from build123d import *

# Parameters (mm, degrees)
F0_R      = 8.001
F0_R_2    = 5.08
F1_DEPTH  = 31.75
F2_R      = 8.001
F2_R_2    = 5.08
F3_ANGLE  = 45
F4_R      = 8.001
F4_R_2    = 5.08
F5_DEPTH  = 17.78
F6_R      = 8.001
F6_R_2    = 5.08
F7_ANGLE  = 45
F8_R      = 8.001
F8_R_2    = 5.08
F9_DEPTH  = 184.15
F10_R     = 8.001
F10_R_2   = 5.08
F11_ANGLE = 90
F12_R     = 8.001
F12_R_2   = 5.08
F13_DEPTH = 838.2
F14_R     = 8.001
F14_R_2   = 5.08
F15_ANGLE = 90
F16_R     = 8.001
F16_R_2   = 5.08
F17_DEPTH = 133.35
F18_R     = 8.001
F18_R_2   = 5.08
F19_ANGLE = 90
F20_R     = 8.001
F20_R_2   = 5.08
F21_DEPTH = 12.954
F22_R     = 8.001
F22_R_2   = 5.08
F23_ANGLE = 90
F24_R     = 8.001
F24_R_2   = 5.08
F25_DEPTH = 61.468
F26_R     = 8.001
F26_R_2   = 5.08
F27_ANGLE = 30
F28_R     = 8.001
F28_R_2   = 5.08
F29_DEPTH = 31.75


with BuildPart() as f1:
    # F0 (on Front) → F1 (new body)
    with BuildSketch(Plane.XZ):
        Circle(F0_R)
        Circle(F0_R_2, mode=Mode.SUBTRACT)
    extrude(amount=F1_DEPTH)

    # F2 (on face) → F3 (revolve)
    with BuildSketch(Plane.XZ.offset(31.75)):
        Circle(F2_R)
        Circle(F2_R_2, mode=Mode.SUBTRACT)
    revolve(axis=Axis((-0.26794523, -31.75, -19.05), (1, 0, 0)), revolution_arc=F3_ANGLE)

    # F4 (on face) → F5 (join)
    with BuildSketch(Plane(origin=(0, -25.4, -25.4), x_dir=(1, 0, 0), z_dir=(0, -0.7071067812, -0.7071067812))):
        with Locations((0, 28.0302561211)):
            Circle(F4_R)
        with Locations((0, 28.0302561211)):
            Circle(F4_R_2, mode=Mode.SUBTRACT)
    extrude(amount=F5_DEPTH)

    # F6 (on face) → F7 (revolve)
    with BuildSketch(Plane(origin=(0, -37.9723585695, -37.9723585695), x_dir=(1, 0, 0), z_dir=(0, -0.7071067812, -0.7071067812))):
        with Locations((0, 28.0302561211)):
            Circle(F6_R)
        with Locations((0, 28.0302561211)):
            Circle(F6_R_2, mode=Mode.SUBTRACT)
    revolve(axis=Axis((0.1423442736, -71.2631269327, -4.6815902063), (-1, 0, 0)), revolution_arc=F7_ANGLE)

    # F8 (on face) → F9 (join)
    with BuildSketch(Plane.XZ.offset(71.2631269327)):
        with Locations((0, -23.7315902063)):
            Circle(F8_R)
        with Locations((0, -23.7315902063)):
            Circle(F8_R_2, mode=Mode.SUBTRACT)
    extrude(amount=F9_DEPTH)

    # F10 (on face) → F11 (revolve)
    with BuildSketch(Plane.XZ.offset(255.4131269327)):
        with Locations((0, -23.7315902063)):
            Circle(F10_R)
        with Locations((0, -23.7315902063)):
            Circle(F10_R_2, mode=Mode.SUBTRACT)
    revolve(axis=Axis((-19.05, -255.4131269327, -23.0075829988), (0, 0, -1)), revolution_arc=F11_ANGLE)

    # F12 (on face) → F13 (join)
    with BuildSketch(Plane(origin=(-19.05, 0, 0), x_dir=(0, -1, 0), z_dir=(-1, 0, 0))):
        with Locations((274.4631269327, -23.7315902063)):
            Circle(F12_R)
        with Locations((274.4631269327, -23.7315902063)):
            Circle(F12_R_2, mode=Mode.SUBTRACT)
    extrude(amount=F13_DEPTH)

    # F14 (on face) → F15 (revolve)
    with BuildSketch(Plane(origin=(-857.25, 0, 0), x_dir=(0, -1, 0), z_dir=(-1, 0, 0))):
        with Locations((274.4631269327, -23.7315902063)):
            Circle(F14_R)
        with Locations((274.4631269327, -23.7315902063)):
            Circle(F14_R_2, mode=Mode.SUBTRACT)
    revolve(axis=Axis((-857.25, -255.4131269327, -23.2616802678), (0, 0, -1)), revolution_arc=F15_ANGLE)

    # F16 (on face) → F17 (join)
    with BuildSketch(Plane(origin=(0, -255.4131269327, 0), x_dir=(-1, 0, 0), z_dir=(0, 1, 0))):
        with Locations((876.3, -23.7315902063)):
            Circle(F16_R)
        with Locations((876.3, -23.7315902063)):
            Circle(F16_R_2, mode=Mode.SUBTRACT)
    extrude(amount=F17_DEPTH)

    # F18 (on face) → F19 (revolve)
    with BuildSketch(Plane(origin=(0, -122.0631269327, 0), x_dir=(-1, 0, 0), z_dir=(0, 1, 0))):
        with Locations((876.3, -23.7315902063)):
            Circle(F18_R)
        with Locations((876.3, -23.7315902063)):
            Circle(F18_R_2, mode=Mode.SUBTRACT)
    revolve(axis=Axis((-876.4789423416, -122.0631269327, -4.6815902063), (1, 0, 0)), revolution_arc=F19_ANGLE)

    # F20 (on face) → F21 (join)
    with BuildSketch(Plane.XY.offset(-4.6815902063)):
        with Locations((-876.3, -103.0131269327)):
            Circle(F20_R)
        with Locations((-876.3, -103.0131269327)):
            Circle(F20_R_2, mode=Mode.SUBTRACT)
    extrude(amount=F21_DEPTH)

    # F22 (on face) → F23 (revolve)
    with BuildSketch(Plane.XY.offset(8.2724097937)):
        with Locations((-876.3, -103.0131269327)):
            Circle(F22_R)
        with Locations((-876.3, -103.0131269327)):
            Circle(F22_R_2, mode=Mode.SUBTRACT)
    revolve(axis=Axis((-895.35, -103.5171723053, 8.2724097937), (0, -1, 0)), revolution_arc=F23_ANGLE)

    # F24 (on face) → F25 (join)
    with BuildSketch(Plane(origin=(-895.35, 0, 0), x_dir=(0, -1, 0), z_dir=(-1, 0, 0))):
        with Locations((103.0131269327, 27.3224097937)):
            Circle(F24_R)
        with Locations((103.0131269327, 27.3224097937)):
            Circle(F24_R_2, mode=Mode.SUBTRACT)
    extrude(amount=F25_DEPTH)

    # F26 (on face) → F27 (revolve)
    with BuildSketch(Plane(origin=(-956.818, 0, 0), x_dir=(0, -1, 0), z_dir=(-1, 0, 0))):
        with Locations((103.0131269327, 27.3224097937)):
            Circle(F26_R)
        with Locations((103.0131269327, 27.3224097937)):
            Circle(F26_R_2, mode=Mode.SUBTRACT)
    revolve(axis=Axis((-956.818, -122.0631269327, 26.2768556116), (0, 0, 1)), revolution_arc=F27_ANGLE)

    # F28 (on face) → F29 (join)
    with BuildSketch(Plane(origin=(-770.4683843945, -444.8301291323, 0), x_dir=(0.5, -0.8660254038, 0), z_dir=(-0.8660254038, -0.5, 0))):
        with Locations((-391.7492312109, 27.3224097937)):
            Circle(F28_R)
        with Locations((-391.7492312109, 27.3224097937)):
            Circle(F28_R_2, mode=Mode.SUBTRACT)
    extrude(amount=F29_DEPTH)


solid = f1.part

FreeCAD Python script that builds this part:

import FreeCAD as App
import Part
import Sketcher
from FreeCAD import Vector
Q = App.Units.Quantity

doc = App.newDocument("Part")
body = doc.addObject("PartDesign::Body", "Body")

# Sketch on XZ plane
sketch1 = doc.addObject("Sketcher::SketchObject", "Sketch")
body.addObject(sketch1)
sketch1.AttachmentSupport = (doc.XZ_Plane, [""])
sketch1.MapMode = "FlatFace"
sketch1.addGeometry([
    Part.Circle(Vector(0, 0, 0), Vector(0, 0, 1), 8.001),
    Part.Circle(Vector(0, 0, 0), Vector(0, 0, 1), 5.08),
], False)
sketch1.addConstraint([
    Sketcher.Constraint("Coincident", 0, 3, -1, 1),
    Sketcher.Constraint("Coincident", 1, 3, -1, 1),
    Sketcher.Constraint("Diameter", 1, Q("0.4 in")),
    Sketcher.Constraint("Diameter", 0, Q("0.63 in")),
])
pad1 = doc.addObject("PartDesign::Pad", "Pad")
body.addObject(pad1)
pad1.Profile = sketch1
pad1.Length = Q("1.25 in")

# Sketch on XZ plane
sketch2 = doc.addObject("Sketcher::SketchObject", "Sketch001")
body.addObject(sketch2)
sketch2.AttachmentSupport = (doc.XZ_Plane, [""])
sketch2.MapMode = "FlatFace"
sketch2.AttachmentOffset = App.Placement(Vector(0, 0, 1.25 * 25.4), App.Rotation())
sketch2.addGeometry([
    Part.Circle(Vector(0, 0, 0), Vector(0, 0, 1), 8.001),
    Part.Circle(Vector(0, 0, 0), Vector(0, 0, 1), 5.08),
], False)
sketch2.addGeometry(Part.LineSegment(Vector(0, -19.05, 0), Vector(10, -19.05, 0)), True)  # axis
sketch2.addConstraint([
    Sketcher.Constraint("Horizontal", 2),
    Sketcher.Constraint("Coincident", 0, 3, -1, 1),
    Sketcher.Constraint("Coincident", 1, 3, -1, 1),
    Sketcher.Constraint("PointOnObject", 2, 1, -2),
    Sketcher.Constraint("Diameter", 1, Q("0.4 in")),
    Sketcher.Constraint("Diameter", 0, Q("0.63 in")),
    Sketcher.Constraint("DistanceY", 2, 1, -1, 1, Q("0.75 in")),
    Sketcher.Constraint("DistanceX", 2, 1, 2, 2, Q("10 mm")),
])
revolution = doc.addObject("PartDesign::Revolution", "Revolution")
body.addObject(revolution)
revolution.Profile = sketch2
revolution.ReferenceAxis = (sketch2, ["Axis0"])
revolution.Angle = 45

# Sketch on an angled plane
sketch3 = doc.addObject("Sketcher::SketchObject", "Sketch002")
body.addObject(sketch3)
sketch3.Placement = App.Placement(Vector(0, -25.4, -25.4), App.Rotation(Vector(1, 0, 0), Vector(0, -0.707106781, 0.707106781), Vector(0, -0.707106781, -0.707106781), "ZXY"))
sketch3.addGeometry([
    Part.Circle(Vector(0, 28.030256, 0), Vector(0, 0, 1), 8.001),
    Part.Circle(Vector(0, 28.030256, 0), Vector(0, 0, 1), 5.08),
], False)
sketch3.addConstraint([
    Sketcher.Constraint("Coincident", 1, 3, 0, 3),
    Sketcher.Constraint("PointOnObject", 0, 3, -2),
    Sketcher.Constraint("Diameter", 1, Q("0.4 in")),
    Sketcher.Constraint("Diameter", 0, Q("0.63 in")),
    Sketcher.Constraint("DistanceY", -1, 1, 0, 3, Q("28.030256 mm")),
])
pad2 = doc.addObject("PartDesign::Pad", "Pad001")
body.addObject(pad2)
pad2.Profile = sketch3
pad2.Length = Q("0.7 in")

# Sketch on an angled plane
sketch4 = doc.addObject("Sketcher::SketchObject", "Sketch003")
body.addObject(sketch4)
sketch4.Placement = App.Placement(Vector(0, -37.972359, -37.972359), App.Rotation(Vector(1, 0, 0), Vector(0, -0.707106781, 0.707106781), Vector(0, -0.707106781, -0.707106781), "ZXY"))
sketch4.addGeometry([
    Part.Circle(Vector(0, 28.030256, 0), Vector(0, 0, 1), 8.001),
    Part.Circle(Vector(0, 28.030256, 0), Vector(0, 0, 1), 5.08),
], False)
sketch4.addGeometry(Part.LineSegment(Vector(0, 47.080256, 0), Vector(-10, 47.080256, 0)), True)  # axis
sketch4.addConstraint([
    Sketcher.Constraint("Horizontal", 2),
    Sketcher.Constraint("Coincident", 1, 3, 0, 3),
    Sketcher.Constraint("PointOnObject", 0, 3, -2),
    Sketcher.Constraint("PointOnObject", 2, 1, -2),
    Sketcher.Constraint("Diameter", 1, Q("0.4 in")),
    Sketcher.Constraint("Diameter", 0, Q("0.63 in")),
    Sketcher.Constraint("DistanceY", 0, 3, 2, 1, Q("0.75 in")),
    Sketcher.Constraint("DistanceX", 2, 2, 2, 1, Q("10 mm")),
    Sketcher.Constraint("DistanceY", -1, 1, 0, 3, Q("28.030256 mm")),
])
revolution2 = doc.addObject("PartDesign::Revolution", "Revolution001")
body.addObject(revolution2)
revolution2.Profile = sketch4
revolution2.ReferenceAxis = (sketch4, ["Axis0"])
revolution2.Angle = 45

# Sketch on XZ plane
sketch5 = doc.addObject("Sketcher::SketchObject", "Sketch004")
body.addObject(sketch5)
sketch5.AttachmentSupport = (doc.XZ_Plane, [""])
sketch5.MapMode = "FlatFace"
sketch5.AttachmentOffset = App.Placement(Vector(0, 0, 71.263127), App.Rotation())
sketch5.addGeometry([
    Part.Circle(Vector(0, -23.73159, 0), Vector(0, 0, 1), 8.001),
    Part.Circle(Vector(0, -23.73159, 0), Vector(0, 0, 1), 5.08),
], False)
sketch5.addConstraint([
    Sketcher.Constraint("Coincident", 1, 3, 0, 3),
    Sketcher.Constraint("PointOnObject", 0, 3, -2),
    Sketcher.Constraint("Diameter", 1, Q("0.4 in")),
    Sketcher.Constraint("Diameter", 0, Q("0.63 in")),
    Sketcher.Constraint("DistanceY", 0, 3, -1, 1, Q("23.73159 mm")),
])
pad3 = doc.addObject("PartDesign::Pad", "Pad002")
body.addObject(pad3)
pad3.Profile = sketch5
pad3.Length = Q("7.25 in")

# Sketch on XZ plane
sketch6 = doc.addObject("Sketcher::SketchObject", "Sketch005")
body.addObject(sketch6)
sketch6.AttachmentSupport = (doc.XZ_Plane, [""])
sketch6.MapMode = "FlatFace"
sketch6.AttachmentOffset = App.Placement(Vector(0, 0, 255.413127), App.Rotation())
sketch6.addGeometry([
    Part.Circle(Vector(0, -23.73159, 0), Vector(0, 0, 1), 8.001),
    Part.Circle(Vector(0, -23.73159, 0), Vector(0, 0, 1), 5.08),
], False)
sketch6.addGeometry(Part.LineSegment(Vector(-19.05, -23.73159, 0), Vector(-19.05, -33.73159, 0)), True)  # axis
sketch6.addConstraint([
    Sketcher.Constraint("Vertical", 2),
    Sketcher.Constraint("Coincident", 1, 3, 0, 3),
    Sketcher.Constraint("PointOnObject", 0, 3, -2),
    Sketcher.Constraint("Horizontal", 1, 3, 2, 1),
    Sketcher.Constraint("Diameter", 1, Q("0.4 in")),
    Sketcher.Constraint("Diameter", 0, Q("0.63 in")),
    Sketcher.Constraint("DistanceX", 2, 1, -1, 1, Q("0.75 in")),
    Sketcher.Constraint("DistanceY", 2, 2, 2, 1, Q("10 mm")),
    Sketcher.Constraint("DistanceY", 0, 3, -1, 1, Q("23.73159 mm")),
])
revolution3 = doc.addObject("PartDesign::Revolution", "Revolution002")
body.addObject(revolution3)
revolution3.Profile = sketch6
revolution3.ReferenceAxis = (sketch6, ["Axis0"])
revolution3.Angle = 90

# Sketch on YZ plane
sketch7 = doc.addObject("Sketcher::SketchObject", "Sketch006")
body.addObject(sketch7)
sketch7.AttachmentSupport = (doc.YZ_Plane, [""])
sketch7.MapMode = "FlatFace"
sketch7.AttachmentOffset = App.Placement(Vector(0, 0, -0.75 * 25.4), App.Rotation())
sketch7.addGeometry([
    Part.Circle(Vector(-274.463127, -23.73159, 0), Vector(0, 0, 1), 8.001),
    Part.Circle(Vector(-274.463127, -23.73159, 0), Vector(0, 0, 1), 5.08),
], False)
sketch7.addConstraint([
    Sketcher.Constraint("Coincident", 1, 3, 0, 3),
    Sketcher.Constraint("Diameter", 1, Q("0.4 in")),
    Sketcher.Constraint("Diameter", 0, Q("0.63 in")),
    Sketcher.Constraint("DistanceY", 0, 3, -1, 1, Q("23.73159 mm")),
    Sketcher.Constraint("DistanceX", 0, 3, -1, 1, Q("274.463127 mm")),
])
pad4 = doc.addObject("PartDesign::Pad", "Pad003")
body.addObject(pad4)
pad4.Profile = sketch7
pad4.Length = Q("33 in")
pad4.Reversed = True

# Sketch on YZ plane
sketch8 = doc.addObject("Sketcher::SketchObject", "Sketch007")
body.addObject(sketch8)
sketch8.AttachmentSupport = (doc.YZ_Plane, [""])
sketch8.MapMode = "FlatFace"
sketch8.AttachmentOffset = App.Placement(Vector(0, 0, -33.75 * 25.4), App.Rotation())
sketch8.addGeometry([
    Part.Circle(Vector(-274.463127, -23.73159, 0), Vector(0, 0, 1), 8.001),
    Part.Circle(Vector(-274.463127, -23.73159, 0), Vector(0, 0, 1), 5.08),
], False)
sketch8.addGeometry(Part.LineSegment(Vector(-255.413127, -23.73159, 0), Vector(-255.413127, -33.73159, 0)), True)  # axis
sketch8.addConstraint([
    Sketcher.Constraint("Vertical", 2),
    Sketcher.Constraint("Coincident", 1, 3, 0, 3),
    Sketcher.Constraint("Horizontal", 1, 3, 2, 1),
    Sketcher.Constraint("Diameter", 1, Q("0.4 in")),
    Sketcher.Constraint("Diameter", 0, Q("0.63 in")),
    Sketcher.Constraint("DistanceX", 0, 3, 2, 1, Q("0.75 in")),
    Sketcher.Constraint("DistanceY", 2, 2, 2, 1, Q("10 mm")),
    Sketcher.Constraint("DistanceY", 0, 3, -1, 1, Q("23.73159 mm")),
    Sketcher.Constraint("DistanceX", 0, 3, -1, 1, Q("274.463127 mm")),
])
revolution4 = doc.addObject("PartDesign::Revolution", "Revolution003")
body.addObject(revolution4)
revolution4.Profile = sketch8
revolution4.ReferenceAxis = (sketch8, ["Axis0"])
revolution4.Angle = 90

# Sketch on XZ plane
sketch9 = doc.addObject("Sketcher::SketchObject", "Sketch008")
body.addObject(sketch9)
sketch9.AttachmentSupport = (doc.XZ_Plane, [""])
sketch9.MapMode = "FlatFace"
sketch9.AttachmentOffset = App.Placement(Vector(0, 0, 255.413127), App.Rotation())
sketch9.addGeometry([
    Part.Circle(Vector(-876.3, -23.73159, 0), Vector(0, 0, 1), 8.001),
    Part.Circle(Vector(-876.3, -23.73159, 0), Vector(0, 0, 1), 5.08),
], False)
sketch9.addConstraint([
    Sketcher.Constraint("Coincident", 1, 3, 0, 3),
    Sketcher.Constraint("Diameter", 1, Q("0.4 in")),
    Sketcher.Constraint("Diameter", 0, Q("0.63 in")),
    Sketcher.Constraint("DistanceX", 0, 3, -1, 1, Q("34.5 in")),
    Sketcher.Constraint("DistanceY", 0, 3, -1, 1, Q("23.73159 mm")),
])
pad5 = doc.addObject("PartDesign::Pad", "Pad004")
body.addObject(pad5)
pad5.Profile = sketch9
pad5.Length = Q("5.25 in")
pad5.Reversed = True

# Sketch on XZ plane
sketch10 = doc.addObject("Sketcher::SketchObject", "Sketch009")
body.addObject(sketch10)
sketch10.AttachmentSupport = (doc.XZ_Plane, [""])
sketch10.MapMode = "FlatFace"
sketch10.AttachmentOffset = App.Placement(Vector(0, 0, 122.063127), App.Rotation())
sketch10.addGeometry([
    Part.Circle(Vector(-876.3, -23.73159, 0), Vector(0, 0, 1), 8.001),
    Part.Circle(Vector(-876.3, -23.73159, 0), Vector(0, 0, 1), 5.08),
], False)
sketch10.addGeometry(Part.LineSegment(Vector(-876.3, -4.68159, 0), Vector(-866.3, -4.68159, 0)), True)  # axis
sketch10.addConstraint([
    Sketcher.Constraint("Horizontal", 2),
    Sketcher.Constraint("Coincident", 1, 3, 0, 3),
    Sketcher.Constraint("Vertical", 1, 3, 2, 1),
    Sketcher.Constraint("Diameter", 1, Q("0.4 in")),
    Sketcher.Constraint("Diameter", 0, Q("0.63 in")),
    Sketcher.Constraint("DistanceX", 0, 3, -1, 1, Q("34.5 in")),
    Sketcher.Constraint("DistanceY", 0, 3, 2, 1, Q("0.75 in")),
    Sketcher.Constraint("DistanceX", 2, 1, 2, 2, Q("10 mm")),
    Sketcher.Constraint("DistanceY", 0, 3, -1, 1, Q("23.73159 mm")),
])
revolution5 = doc.addObject("PartDesign::Revolution", "Revolution004")
body.addObject(revolution5)
revolution5.Profile = sketch10
revolution5.ReferenceAxis = (sketch10, ["Axis0"])
revolution5.Angle = 90

# Sketch on XY plane
sketch11 = doc.addObject("Sketcher::SketchObject", "Sketch010")
body.addObject(sketch11)
sketch11.AttachmentSupport = (doc.XY_Plane, [""])
sketch11.MapMode = "FlatFace"
sketch11.AttachmentOffset = App.Placement(Vector(0, 0, -4.68159), App.Rotation())
sketch11.addGeometry([
    Part.Circle(Vector(-876.3, -103.013127, 0), Vector(0, 0, 1), 8.001),
    Part.Circle(Vector(-876.3, -103.013127, 0), Vector(0, 0, 1), 5.08),
], False)
sketch11.addConstraint([
    Sketcher.Constraint("Coincident", 1, 3, 0, 3),
    Sketcher.Constraint("Diameter", 1, Q("0.4 in")),
    Sketcher.Constraint("Diameter", 0, Q("0.63 in")),
    Sketcher.Constraint("DistanceX", 0, 3, -1, 1, Q("34.5 in")),
    Sketcher.Constraint("DistanceY", 0, 3, -1, 1, Q("103.013127 mm")),
])
pad6 = doc.addObject("PartDesign::Pad", "Pad005")
body.addObject(pad6)
pad6.Profile = sketch11
pad6.Length = Q("0.51 in")

# Sketch on XY plane
sketch12 = doc.addObject("Sketcher::SketchObject", "Sketch011")
body.addObject(sketch12)
sketch12.AttachmentSupport = (doc.XY_Plane, [""])
sketch12.MapMode = "FlatFace"
sketch12.AttachmentOffset = App.Placement(Vector(0, 0, 8.27241), App.Rotation())
sketch12.addGeometry([
    Part.Circle(Vector(-876.3, -103.013127, 0), Vector(0, 0, 1), 8.001),
    Part.Circle(Vector(-876.3, -103.013127, 0), Vector(0, 0, 1), 5.08),
], False)
sketch12.addGeometry(Part.LineSegment(Vector(-895.35, -103.013127, 0), Vector(-895.35, -113.013127, 0)), True)  # axis
sketch12.addConstraint([
    Sketcher.Constraint("Vertical", 2),
    Sketcher.Constraint("Coincident", 1, 3, 0, 3),
    Sketcher.Constraint("Horizontal", 1, 3, 2, 1),
    Sketcher.Constraint("Diameter", 1, Q("0.4 in")),
    Sketcher.Constraint("Diameter", 0, Q("0.63 in")),
    Sketcher.Constraint("DistanceX", 0, 3, -1, 1, Q("34.5 in")),
    Sketcher.Constraint("DistanceX", 2, 1, -1, 1, Q("35.25 in")),
    Sketcher.Constraint("DistanceY", 2, 2, 2, 1, Q("10 mm")),
    Sketcher.Constraint("DistanceY", 0, 3, -1, 1, Q("103.013127 mm")),
])
revolution6 = doc.addObject("PartDesign::Revolution", "Revolution005")
body.addObject(revolution6)
revolution6.Profile = sketch12
revolution6.ReferenceAxis = (sketch12, ["Axis0"])
revolution6.Angle = 90

# Sketch on YZ plane
sketch13 = doc.addObject("Sketcher::SketchObject", "Sketch012")
body.addObject(sketch13)
sketch13.AttachmentSupport = (doc.YZ_Plane, [""])
sketch13.MapMode = "FlatFace"
sketch13.AttachmentOffset = App.Placement(Vector(0, 0, -35.25 * 25.4), App.Rotation())
sketch13.addGeometry([
    Part.Circle(Vector(-103.013127, 27.32241, 0), Vector(0, 0, 1), 8.001),
    Part.Circle(Vector(-103.013127, 27.32241, 0), Vector(0, 0, 1), 5.08),
], False)
sketch13.addConstraint([
    Sketcher.Constraint("Coincident", 1, 3, 0, 3),
    Sketcher.Constraint("Diameter", 1, Q("0.4 in")),
    Sketcher.Constraint("Diameter", 0, Q("0.63 in")),
    Sketcher.Constraint("DistanceY", -1, 1, 0, 3, Q("27.32241 mm")),
    Sketcher.Constraint("DistanceX", 0, 3, -1, 1, Q("103.013127 mm")),
])
pad7 = doc.addObject("PartDesign::Pad", "Pad006")
body.addObject(pad7)
pad7.Profile = sketch13
pad7.Length = Q("2.42 in")
pad7.Reversed = True

# Sketch on YZ plane
sketch14 = doc.addObject("Sketcher::SketchObject", "Sketch013")
body.addObject(sketch14)
sketch14.AttachmentSupport = (doc.YZ_Plane, [""])
sketch14.MapMode = "FlatFace"
sketch14.AttachmentOffset = App.Placement(Vector(0, 0, -37.67 * 25.4), App.Rotation())
sketch14.addGeometry([
    Part.Circle(Vector(-103.013127, 27.32241, 0), Vector(0, 0, 1), 8.001),
    Part.Circle(Vector(-103.013127, 27.32241, 0), Vector(0, 0, 1), 5.08),
], False)
sketch14.addGeometry(Part.LineSegment(Vector(-122.063127, 27.32241, 0), Vector(-122.063127, 37.32241, 0)), True)  # axis
sketch14.addConstraint([
    Sketcher.Constraint("Vertical", 2),
    Sketcher.Constraint("Coincident", 1, 3, 0, 3),
    Sketcher.Constraint("Horizontal", 1, 3, 2, 1),
    Sketcher.Constraint("Diameter", 1, Q("0.4 in")),
    Sketcher.Constraint("Diameter", 0, Q("0.63 in")),
    Sketcher.Constraint("DistanceX", 2, 1, 0, 3, Q("0.75 in")),
    Sketcher.Constraint("DistanceY", 2, 1, 2, 2, Q("10 mm")),
    Sketcher.Constraint("DistanceY", -1, 1, 0, 3, Q("27.32241 mm")),
    Sketcher.Constraint("DistanceX", 0, 3, -1, 1, Q("103.013127 mm")),
])
revolution7 = doc.addObject("PartDesign::Revolution", "Revolution006")
body.addObject(revolution7)
revolution7.Profile = sketch14
revolution7.ReferenceAxis = (sketch14, ["Axis0"])
revolution7.Angle = 30

# Sketch on an angled plane
sketch15 = doc.addObject("Sketcher::SketchObject", "Sketch014")
body.addObject(sketch15)
sketch15.Placement = App.Placement(Vector(-770.468384, -444.830129, 0), App.Rotation(Vector(0.5, -0.866025404, 0), Vector(0, 0, 1), Vector(-0.866025404, -0.5, 0), "ZXY"))
sketch15.addGeometry([
    Part.Circle(Vector(-391.749231, 27.32241, 0), Vector(0, 0, 1), 8.001),
    Part.Circle(Vector(-391.749231, 27.32241, 0), Vector(0, 0, 1), 5.08),
], False)
sketch15.addConstraint([
    Sketcher.Constraint("Coincident", 1, 3, 0, 3),
    Sketcher.Constraint("Diameter", 1, Q("0.4 in")),
    Sketcher.Constraint("Diameter", 0, Q("0.63 in")),
    Sketcher.Constraint("DistanceX", 0, 3, -1, 1, Q("391.749231 mm")),
    Sketcher.Constraint("DistanceY", -1, 1, 0, 3, Q("27.32241 mm")),
])
pad8 = doc.addObject("PartDesign::Pad", "Pad007")
body.addObject(pad8)
pad8.Profile = sketch15
pad8.Length = Q("1.25 in")

doc.recompute()
